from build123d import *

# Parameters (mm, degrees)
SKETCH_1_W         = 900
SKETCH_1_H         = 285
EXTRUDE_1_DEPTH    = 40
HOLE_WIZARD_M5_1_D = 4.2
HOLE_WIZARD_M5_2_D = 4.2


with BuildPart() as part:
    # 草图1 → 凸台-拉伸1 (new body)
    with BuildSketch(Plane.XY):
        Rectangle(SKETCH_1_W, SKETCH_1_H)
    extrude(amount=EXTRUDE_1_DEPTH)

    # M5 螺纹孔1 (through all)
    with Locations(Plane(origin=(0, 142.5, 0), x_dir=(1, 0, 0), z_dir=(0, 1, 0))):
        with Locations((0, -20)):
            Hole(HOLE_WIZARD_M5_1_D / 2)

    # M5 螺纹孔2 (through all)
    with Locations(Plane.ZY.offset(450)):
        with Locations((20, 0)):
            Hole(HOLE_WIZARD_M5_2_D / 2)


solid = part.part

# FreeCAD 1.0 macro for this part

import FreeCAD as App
import Part
import Sketcher

V = App.Vector
Q = App.Units.Quantity


def add_polygon(sketch, points):
    """Adds a closed chain of lines whose ends are joined by coincident constraints."""
    first, n = sketch.GeometryCount, len(points)
    for a, b in zip(points, points[1:] + points[:1]):
        sketch.addGeometry(Part.LineSegment(App.Vector(*a, 0), App.Vector(*b, 0)), False)
    for i in range(n):
        sketch.addConstraint(Sketcher.Constraint("Coincident", first + i, 2, first + (i + 1) % n, 1))

doc = App.newDocument("Part")
body = doc.addObject("PartDesign::Body", "Body")

sketch1 = body.newObject("Sketcher::SketchObject", "Sketch")
sketch1.AttachmentSupport = (doc.getObject("XY_Plane"), [""])
sketch1.MapMode = "FlatFace"
add_polygon(sketch1, [(-450, 142.5), (-450, -142.5), (450, -142.5), (450, 142.5)])
sketch1.addConstraint(Sketcher.Constraint("Vertical", 0))
sketch1.addConstraint(Sketcher.Constraint("Horizontal", 1))
sketch1.addConstraint(Sketcher.Constraint("Vertical", 2))
sketch1.addConstraint(Sketcher.Constraint("Horizontal", 3))
sketch1.addConstraint(Sketcher.Constraint("Symmetric", 0, 2, 2, 2, -1, 1))
sketch1.addConstraint(Sketcher.Constraint("DistanceX", 1, 1, 1, 2, Q("900 mm")))
sketch1.addConstraint(Sketcher.Constraint("DistanceY", 0, 2, 0, 1, Q("285 mm")))
pad1 = body.newObject("PartDesign::Pad", "Pad")
pad1.Profile = sketch1
pad1.Length = 40

sketch2 = body.newObject("Sketcher::SketchObject", "Sketch001")
sketch2.AttachmentSupport = (doc.getObject("XZ_Plane"), [""])
sketch2.MapMode = "FlatFace"
sketch2.AttachmentOffset = App.Placement(V(0, 0, -142.5), App.Rotation())
sketch2.addGeometry(Part.Circle(V(0, 20, 0), V(0, 0, 1), 2.1), False)
sketch2.addConstraint(Sketcher.Constraint("PointOnObject", 0, 3, -2))
sketch2.addConstraint(Sketcher.Constraint("Diameter", 0, Q("4.2 mm")))
sketch2.addConstraint(Sketcher.Constraint("DistanceY", -1, 1, 0, 3, Q("20 mm")))
doc.recompute()
hole = body.newObject("PartDesign::Hole", "Hole")
hole.Profile = sketch2
hole.ThreadType = "None"
hole.Diameter = 4.2
hole.DepthType = "ThroughAll"
hole.Reversed = True

sketch3 = body.newObject("Sketcher::SketchObject", "Sketch002")
sketch3.AttachmentSupport = (doc.getObject("YZ_Plane"), [""])
sketch3.MapMode = "FlatFace"
sketch3.AttachmentOffset = App.Placement(V(0, 0, -450), App.Rotation())
sketch3.addGeometry(Part.Circle(V(0, 20, 0), V(0, 0, 1), 2.1), False)
sketch3.addConstraint(Sketcher.Constraint("PointOnObject", 0, 3, -2))
sketch3.addConstraint(Sketcher.Constraint("Diameter", 0, Q("4.2 mm")))
sketch3.addConstraint(Sketcher.Constraint("DistanceY", -1, 1, 0, 3, Q("20 mm")))
doc.recompute()
hole2 = body.newObject("PartDesign::Hole", "Hole001")
hole2.Profile = sketch3
hole2.ThreadType = "None"
hole2.Diameter = 4.2
hole2.DepthType = "ThroughAll"
hole2.Reversed = True

doc.recompute()
